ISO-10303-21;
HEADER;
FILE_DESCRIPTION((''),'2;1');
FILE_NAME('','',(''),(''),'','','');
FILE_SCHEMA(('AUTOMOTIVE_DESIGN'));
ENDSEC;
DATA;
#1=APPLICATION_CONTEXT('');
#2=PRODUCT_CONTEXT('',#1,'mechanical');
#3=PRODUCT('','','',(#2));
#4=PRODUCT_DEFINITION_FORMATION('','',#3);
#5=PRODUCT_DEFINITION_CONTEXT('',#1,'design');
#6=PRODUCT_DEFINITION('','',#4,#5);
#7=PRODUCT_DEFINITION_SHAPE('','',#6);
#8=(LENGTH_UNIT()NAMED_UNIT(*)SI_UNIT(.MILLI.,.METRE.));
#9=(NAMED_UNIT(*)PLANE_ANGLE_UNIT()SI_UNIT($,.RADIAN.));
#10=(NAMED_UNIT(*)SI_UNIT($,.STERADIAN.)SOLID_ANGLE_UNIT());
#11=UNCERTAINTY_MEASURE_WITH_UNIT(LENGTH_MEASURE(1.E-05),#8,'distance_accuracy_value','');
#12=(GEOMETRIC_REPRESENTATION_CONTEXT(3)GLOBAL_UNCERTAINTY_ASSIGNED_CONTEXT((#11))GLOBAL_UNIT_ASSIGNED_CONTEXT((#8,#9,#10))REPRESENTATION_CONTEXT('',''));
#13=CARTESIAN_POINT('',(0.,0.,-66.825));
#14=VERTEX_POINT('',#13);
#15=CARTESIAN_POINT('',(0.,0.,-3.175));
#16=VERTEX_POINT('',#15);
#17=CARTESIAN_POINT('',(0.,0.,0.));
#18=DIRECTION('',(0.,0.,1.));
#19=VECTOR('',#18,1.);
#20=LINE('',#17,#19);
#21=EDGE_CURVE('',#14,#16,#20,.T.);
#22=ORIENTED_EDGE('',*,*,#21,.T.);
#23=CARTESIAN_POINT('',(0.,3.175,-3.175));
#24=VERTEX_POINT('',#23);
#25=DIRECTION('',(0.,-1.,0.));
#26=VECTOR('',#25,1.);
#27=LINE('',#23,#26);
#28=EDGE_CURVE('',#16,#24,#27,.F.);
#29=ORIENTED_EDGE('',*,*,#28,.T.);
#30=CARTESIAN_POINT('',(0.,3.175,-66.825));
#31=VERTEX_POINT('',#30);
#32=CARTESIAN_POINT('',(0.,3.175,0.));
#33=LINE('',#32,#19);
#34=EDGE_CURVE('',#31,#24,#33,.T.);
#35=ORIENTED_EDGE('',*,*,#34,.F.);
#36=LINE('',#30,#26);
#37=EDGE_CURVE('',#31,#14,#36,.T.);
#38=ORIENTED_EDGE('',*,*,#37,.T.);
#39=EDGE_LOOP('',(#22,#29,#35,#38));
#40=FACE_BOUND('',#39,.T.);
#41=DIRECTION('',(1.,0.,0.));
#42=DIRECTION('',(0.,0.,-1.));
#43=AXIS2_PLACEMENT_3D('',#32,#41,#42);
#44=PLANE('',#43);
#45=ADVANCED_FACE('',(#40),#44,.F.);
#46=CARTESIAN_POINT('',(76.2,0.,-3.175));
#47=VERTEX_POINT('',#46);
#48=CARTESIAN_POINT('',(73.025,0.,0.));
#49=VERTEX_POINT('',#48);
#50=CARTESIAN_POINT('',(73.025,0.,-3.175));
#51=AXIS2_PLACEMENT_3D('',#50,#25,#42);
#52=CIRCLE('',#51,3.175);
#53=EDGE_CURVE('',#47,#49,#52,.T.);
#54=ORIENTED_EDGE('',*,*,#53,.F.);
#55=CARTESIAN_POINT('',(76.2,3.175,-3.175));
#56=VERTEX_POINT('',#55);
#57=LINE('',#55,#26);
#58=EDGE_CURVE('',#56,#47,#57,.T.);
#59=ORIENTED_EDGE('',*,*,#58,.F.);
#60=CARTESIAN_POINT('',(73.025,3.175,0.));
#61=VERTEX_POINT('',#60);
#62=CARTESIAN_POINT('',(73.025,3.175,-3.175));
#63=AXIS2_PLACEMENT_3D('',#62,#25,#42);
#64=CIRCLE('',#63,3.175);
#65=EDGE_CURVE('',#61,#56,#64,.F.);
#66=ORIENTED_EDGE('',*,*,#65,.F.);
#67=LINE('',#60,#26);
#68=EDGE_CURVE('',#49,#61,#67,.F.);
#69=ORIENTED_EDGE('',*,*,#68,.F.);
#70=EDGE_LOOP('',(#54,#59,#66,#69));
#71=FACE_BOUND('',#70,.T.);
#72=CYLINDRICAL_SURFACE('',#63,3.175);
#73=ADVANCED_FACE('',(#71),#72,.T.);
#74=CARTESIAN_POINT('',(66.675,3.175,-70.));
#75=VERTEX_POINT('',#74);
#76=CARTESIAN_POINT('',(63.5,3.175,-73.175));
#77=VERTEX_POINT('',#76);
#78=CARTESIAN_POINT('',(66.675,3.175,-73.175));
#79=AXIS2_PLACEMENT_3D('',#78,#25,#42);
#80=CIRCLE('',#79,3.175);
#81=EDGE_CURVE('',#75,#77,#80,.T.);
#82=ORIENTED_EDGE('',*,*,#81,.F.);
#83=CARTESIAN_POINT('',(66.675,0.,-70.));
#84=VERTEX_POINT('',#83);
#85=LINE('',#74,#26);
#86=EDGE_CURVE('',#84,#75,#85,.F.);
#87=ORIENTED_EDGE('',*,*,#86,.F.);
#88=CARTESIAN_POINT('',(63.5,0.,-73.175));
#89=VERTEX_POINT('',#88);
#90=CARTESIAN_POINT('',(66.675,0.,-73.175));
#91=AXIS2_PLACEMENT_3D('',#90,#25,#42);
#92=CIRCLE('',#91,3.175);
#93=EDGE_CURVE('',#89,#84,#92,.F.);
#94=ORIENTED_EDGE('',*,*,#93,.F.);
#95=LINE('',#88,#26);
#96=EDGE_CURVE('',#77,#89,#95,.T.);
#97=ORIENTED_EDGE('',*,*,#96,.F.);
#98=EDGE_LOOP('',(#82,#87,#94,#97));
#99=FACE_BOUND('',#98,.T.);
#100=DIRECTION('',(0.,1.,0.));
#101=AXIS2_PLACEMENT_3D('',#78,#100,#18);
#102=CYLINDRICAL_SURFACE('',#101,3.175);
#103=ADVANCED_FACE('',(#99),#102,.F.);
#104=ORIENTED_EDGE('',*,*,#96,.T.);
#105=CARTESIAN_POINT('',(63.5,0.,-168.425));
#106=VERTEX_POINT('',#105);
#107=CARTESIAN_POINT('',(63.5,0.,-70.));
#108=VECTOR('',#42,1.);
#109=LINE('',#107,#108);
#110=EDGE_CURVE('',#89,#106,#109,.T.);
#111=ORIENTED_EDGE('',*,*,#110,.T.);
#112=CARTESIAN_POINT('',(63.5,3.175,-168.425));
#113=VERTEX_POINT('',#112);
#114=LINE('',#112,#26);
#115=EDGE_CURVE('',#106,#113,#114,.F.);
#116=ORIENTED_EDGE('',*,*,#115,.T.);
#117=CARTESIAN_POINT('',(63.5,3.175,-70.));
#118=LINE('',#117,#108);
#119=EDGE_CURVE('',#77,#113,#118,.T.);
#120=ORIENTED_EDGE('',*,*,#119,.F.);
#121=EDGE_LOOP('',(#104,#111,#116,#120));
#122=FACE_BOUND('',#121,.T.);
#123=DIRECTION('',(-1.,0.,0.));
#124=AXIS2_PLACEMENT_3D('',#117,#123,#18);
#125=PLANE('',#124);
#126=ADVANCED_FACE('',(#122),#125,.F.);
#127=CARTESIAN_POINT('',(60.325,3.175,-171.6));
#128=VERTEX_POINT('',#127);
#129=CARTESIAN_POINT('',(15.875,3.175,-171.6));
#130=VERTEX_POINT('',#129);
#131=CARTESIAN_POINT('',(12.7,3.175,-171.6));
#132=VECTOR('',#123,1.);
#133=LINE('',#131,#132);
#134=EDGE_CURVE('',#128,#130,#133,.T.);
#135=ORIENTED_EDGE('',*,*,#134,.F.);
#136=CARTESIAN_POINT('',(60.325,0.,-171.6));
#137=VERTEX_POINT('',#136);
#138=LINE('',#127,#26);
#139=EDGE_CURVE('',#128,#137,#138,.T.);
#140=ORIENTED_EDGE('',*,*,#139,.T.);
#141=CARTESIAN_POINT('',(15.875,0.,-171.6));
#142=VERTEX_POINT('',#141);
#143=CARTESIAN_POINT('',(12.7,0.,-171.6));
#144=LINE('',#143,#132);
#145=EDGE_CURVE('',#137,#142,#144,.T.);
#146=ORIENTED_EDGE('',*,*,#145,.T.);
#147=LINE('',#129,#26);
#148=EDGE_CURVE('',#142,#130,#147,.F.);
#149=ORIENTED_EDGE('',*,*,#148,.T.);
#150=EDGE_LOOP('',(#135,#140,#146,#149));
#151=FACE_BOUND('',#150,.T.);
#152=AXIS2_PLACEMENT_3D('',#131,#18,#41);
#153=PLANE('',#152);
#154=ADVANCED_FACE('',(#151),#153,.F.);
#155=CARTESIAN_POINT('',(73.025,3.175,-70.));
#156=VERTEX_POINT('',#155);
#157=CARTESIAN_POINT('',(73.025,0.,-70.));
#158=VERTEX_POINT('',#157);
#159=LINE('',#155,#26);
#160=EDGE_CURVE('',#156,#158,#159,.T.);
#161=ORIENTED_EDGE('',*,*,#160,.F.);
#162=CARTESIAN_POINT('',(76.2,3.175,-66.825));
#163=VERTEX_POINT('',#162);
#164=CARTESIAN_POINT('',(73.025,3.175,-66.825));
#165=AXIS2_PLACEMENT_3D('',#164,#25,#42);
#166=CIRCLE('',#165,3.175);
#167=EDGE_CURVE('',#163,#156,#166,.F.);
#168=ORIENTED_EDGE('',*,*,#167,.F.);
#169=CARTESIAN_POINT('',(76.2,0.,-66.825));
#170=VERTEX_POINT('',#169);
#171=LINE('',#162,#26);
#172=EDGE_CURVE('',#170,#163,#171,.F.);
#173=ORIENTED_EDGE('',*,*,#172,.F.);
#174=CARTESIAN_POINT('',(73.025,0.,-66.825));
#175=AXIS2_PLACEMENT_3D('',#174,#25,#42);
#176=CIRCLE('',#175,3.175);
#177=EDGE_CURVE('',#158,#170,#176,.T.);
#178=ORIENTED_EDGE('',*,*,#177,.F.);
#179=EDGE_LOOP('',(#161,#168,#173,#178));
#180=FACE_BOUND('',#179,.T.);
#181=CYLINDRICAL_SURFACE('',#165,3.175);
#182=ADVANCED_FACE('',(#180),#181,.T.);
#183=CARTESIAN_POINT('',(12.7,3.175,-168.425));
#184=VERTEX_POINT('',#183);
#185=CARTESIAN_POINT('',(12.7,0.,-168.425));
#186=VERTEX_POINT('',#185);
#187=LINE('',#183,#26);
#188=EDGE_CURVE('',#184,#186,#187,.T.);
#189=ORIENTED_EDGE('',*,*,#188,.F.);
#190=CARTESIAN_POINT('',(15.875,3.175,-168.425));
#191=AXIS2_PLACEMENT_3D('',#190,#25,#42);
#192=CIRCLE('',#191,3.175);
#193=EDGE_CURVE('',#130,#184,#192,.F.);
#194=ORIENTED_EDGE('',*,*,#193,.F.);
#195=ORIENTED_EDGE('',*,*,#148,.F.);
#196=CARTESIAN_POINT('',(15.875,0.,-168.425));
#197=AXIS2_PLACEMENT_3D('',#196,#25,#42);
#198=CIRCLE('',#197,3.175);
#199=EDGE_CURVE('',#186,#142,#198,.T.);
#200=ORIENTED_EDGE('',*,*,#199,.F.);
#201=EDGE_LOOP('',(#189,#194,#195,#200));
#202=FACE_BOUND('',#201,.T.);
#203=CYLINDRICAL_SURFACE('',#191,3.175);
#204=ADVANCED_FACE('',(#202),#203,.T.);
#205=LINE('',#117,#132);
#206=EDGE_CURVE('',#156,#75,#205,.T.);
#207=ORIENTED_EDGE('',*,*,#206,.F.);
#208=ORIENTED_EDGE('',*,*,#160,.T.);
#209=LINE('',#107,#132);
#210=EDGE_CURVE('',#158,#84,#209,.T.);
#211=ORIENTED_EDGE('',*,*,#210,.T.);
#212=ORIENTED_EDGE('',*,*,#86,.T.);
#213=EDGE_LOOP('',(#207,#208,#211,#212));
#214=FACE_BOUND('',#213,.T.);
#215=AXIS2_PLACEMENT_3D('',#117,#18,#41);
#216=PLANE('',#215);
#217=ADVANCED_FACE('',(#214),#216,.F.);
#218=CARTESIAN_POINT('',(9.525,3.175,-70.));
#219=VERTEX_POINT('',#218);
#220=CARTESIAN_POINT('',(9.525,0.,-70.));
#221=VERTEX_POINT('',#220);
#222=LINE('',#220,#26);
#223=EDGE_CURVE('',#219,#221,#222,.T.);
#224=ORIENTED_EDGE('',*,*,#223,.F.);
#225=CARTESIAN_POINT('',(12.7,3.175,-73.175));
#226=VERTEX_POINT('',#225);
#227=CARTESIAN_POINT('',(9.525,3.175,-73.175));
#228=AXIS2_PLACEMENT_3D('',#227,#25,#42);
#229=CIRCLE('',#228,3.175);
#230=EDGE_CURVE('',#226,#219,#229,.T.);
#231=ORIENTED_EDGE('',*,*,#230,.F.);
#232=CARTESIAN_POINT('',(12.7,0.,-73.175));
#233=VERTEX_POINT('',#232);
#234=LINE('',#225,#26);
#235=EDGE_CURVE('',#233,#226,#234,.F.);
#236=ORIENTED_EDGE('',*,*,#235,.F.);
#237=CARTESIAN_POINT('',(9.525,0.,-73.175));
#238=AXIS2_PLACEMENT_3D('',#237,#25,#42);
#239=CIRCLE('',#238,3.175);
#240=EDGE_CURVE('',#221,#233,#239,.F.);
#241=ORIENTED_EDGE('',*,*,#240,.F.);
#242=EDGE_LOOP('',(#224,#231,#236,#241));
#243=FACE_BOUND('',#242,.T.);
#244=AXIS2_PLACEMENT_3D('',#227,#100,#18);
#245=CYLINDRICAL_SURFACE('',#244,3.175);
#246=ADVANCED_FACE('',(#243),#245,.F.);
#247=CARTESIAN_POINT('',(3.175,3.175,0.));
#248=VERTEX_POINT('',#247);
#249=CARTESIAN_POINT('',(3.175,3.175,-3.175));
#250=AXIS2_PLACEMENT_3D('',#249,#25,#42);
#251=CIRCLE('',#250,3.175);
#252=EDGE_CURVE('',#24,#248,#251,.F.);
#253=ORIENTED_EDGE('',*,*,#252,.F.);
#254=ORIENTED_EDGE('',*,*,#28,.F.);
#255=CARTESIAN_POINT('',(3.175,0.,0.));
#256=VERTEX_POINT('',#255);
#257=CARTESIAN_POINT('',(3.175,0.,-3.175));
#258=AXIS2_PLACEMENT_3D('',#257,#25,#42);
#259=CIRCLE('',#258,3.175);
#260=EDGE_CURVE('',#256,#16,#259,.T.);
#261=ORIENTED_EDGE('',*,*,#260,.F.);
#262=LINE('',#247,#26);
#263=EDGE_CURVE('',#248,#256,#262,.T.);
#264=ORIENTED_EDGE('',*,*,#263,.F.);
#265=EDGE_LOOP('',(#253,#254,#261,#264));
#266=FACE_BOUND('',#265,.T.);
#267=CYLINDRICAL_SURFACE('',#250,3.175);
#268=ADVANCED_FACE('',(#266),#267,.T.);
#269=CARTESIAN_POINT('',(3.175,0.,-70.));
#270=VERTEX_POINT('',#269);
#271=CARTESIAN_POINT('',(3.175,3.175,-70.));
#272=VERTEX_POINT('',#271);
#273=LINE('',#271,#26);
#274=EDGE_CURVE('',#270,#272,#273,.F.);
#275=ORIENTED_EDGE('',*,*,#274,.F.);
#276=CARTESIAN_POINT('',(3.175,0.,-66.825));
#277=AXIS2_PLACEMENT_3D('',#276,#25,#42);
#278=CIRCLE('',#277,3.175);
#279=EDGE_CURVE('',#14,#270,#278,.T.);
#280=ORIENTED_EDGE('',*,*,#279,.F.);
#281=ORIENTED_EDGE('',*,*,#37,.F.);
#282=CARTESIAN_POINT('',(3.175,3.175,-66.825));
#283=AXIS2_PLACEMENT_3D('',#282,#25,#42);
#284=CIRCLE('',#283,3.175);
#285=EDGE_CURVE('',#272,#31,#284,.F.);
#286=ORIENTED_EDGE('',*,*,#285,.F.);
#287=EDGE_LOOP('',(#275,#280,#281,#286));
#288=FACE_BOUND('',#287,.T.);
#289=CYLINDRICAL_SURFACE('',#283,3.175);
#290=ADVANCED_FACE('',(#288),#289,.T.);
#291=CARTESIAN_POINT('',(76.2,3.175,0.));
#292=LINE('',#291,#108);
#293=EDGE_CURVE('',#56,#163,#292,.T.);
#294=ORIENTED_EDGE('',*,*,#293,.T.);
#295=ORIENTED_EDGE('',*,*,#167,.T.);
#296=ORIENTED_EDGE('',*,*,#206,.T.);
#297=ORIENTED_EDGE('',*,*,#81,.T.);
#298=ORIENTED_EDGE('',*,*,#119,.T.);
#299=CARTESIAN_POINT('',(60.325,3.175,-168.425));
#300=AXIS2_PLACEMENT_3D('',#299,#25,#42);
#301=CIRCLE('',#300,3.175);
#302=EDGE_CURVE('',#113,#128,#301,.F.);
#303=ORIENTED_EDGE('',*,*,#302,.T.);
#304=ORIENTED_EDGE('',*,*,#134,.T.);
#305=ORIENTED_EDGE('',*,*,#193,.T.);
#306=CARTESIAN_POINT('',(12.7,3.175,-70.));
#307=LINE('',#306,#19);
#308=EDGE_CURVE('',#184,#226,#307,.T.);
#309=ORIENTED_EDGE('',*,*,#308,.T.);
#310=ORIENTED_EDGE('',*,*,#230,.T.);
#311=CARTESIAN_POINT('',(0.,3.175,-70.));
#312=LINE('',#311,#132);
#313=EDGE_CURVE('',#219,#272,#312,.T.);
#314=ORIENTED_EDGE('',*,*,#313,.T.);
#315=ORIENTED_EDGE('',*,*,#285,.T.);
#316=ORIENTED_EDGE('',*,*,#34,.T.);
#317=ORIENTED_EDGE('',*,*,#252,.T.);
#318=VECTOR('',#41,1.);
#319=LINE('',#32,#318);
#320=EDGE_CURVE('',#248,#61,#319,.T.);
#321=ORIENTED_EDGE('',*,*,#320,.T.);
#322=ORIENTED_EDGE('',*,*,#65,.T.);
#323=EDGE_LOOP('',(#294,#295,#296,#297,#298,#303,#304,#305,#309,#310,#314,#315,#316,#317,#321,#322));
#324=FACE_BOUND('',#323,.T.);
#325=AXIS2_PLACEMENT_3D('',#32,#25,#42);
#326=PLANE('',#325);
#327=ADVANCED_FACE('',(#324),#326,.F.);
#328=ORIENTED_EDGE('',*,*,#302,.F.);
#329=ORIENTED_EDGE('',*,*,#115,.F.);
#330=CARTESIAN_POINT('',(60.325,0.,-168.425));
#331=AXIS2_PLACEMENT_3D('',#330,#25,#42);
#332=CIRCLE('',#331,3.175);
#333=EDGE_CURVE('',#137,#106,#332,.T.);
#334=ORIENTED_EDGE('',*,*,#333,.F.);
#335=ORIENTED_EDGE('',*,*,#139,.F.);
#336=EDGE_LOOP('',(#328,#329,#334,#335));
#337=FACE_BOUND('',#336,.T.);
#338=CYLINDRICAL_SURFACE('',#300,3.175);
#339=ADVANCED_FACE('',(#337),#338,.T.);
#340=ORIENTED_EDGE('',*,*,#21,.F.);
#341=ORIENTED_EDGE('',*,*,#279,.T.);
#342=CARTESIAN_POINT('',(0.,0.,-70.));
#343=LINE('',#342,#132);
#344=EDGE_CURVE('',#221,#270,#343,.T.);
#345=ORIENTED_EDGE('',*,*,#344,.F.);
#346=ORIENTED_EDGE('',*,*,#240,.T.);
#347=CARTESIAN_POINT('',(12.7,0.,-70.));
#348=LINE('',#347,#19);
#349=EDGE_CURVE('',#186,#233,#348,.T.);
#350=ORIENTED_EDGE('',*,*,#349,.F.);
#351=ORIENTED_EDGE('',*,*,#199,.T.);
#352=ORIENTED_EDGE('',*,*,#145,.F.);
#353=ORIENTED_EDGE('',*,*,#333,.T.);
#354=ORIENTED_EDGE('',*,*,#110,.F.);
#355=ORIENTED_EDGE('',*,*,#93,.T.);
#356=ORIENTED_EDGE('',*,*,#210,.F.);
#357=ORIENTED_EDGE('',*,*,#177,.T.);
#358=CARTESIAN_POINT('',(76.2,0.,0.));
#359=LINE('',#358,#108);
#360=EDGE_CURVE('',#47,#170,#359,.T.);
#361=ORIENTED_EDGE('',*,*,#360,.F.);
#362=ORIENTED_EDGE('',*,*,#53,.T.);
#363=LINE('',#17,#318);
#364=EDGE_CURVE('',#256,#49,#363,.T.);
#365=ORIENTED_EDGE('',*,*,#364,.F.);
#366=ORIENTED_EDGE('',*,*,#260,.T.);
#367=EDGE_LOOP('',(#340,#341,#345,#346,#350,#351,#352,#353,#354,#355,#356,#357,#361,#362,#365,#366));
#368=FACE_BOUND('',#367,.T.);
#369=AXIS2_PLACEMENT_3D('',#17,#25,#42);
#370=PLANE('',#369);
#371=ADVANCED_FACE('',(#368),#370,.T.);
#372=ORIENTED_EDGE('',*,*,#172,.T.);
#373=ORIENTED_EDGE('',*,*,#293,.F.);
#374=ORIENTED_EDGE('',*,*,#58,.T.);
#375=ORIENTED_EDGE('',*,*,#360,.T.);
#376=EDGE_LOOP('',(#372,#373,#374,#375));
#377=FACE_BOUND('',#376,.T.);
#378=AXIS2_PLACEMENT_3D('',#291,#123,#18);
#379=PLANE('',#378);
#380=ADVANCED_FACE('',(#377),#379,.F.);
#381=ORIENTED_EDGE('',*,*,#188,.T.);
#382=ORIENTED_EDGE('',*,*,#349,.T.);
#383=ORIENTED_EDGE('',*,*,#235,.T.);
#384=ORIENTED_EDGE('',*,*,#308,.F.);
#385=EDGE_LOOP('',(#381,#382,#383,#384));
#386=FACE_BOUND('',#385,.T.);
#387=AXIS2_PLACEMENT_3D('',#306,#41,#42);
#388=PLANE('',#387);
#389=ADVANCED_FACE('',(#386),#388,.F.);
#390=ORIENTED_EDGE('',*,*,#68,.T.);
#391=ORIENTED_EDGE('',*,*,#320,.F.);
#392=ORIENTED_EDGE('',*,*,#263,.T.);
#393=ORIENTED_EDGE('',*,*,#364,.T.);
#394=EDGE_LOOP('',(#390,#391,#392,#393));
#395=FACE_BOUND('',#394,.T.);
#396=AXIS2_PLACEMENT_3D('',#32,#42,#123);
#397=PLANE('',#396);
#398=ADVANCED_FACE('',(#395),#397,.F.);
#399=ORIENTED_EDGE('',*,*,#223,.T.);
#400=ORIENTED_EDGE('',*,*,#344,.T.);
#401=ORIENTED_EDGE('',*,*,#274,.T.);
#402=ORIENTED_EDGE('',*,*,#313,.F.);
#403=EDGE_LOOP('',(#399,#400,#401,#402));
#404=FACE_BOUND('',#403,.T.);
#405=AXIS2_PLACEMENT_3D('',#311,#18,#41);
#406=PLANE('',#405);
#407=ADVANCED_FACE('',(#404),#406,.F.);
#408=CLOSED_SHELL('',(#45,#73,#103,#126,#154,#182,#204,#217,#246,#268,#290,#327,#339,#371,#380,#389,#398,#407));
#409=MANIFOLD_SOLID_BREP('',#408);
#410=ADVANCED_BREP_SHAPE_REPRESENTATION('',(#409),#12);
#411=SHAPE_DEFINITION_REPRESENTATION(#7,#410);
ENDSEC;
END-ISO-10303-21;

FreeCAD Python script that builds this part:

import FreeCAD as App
import Part
import Sketcher

V = App.Vector
Q = App.Units.Quantity


def edges_at(feature, points):
    """Names of the edges that pass closest to the given points."""
    edges = feature.Shape.Edges
    near = lambda p: min(range(len(edges)), key=lambda i: edges[i].distToShape(Part.Vertex(*p))[0])
    return sorted({f"Edge{near(p) + 1}" for p in points})


def add_polygon(sketch, points):
    """Adds a closed chain of lines whose ends are joined by coincident constraints."""
    first, n = sketch.GeometryCount, len(points)
    for a, b in zip(points, points[1:] + points[:1]):
        sketch.addGeometry(Part.LineSegment(App.Vector(*a, 0), App.Vector(*b, 0)), False)
    for i in range(n):
        sketch.addConstraint(Sketcher.Constraint("Coincident", first + i, 2, first + (i + 1) % n, 1))

doc = App.newDocument("Part")
body = doc.addObject("PartDesign::Body", "Body")

# Sketch on XZ plane
sketch1 = doc.addObject("Sketcher::SketchObject", "Sketch")
body.addObject(sketch1)
sketch1.AttachmentSupport = (doc.XZ_Plane, [""])
sketch1.MapMode = "FlatFace"
add_polygon(sketch1, [(0, 0), (76.2, 0), (76.2, -70), (63.5, -70), (63.5, -171.6), (12.7, -171.6), (12.7, -70), (0, -70)])  # lines 0-7
sketch1.addConstraint([
    Sketcher.Constraint("Horizontal", 0),
    Sketcher.Constraint("Vertical", 1),
    Sketcher.Constraint("Horizontal", 2),
    Sketcher.Constraint("Vertical", 3),
    Sketcher.Constraint("Horizontal", 4),
    Sketcher.Constraint("Vertical", 5),
    Sketcher.Constraint("Horizontal", 6),
    Sketcher.Constraint("Vertical", 7),
    Sketcher.Constraint("Coincident", 7, 2, -1, 1),
    Sketcher.Constraint("Horizontal", 2, 2, 5, 2),
    Sketcher.Constraint("Equal", 2, 6),
    Sketcher.Constraint("DistanceX", 0, 1, 0, 2, Q("3 in")),
    Sketcher.Constraint("DistanceX", 4, 2, 4, 1, Q("2 in")),
    Sketcher.Constraint("DistanceY", 3, 2, 3, 1, Q("4 in")),
    Sketcher.Constraint("DistanceY", 1, 2, 1, 1, Q("70 mm")),
])
pad1 = doc.addObject("PartDesign::Pad", "Pad")
body.addObject(pad1)
pad1.Profile = sketch1
pad1.Length = Q("0.125 in")
pad1.Reversed = True
doc.recompute()

fillet = doc.addObject("PartDesign::Fillet", "Fillet")
body.addObject(fillet)
fillet.Base = (pad1, edges_at(pad1, [
    (0, 1.587, -70),
    (12.7, 1.587, -70),
    (12.7, 1.587, -171.6),
    (63.5, 1.587, -171.6),
    (63.5, 1.587, -70),
    (76.2, 1.587, -70),
    (76.2, 1.587, 0),
    (0, 1.587, 0),
]))
fillet.Radius = Q("0.125 in")

doc.recompute()
